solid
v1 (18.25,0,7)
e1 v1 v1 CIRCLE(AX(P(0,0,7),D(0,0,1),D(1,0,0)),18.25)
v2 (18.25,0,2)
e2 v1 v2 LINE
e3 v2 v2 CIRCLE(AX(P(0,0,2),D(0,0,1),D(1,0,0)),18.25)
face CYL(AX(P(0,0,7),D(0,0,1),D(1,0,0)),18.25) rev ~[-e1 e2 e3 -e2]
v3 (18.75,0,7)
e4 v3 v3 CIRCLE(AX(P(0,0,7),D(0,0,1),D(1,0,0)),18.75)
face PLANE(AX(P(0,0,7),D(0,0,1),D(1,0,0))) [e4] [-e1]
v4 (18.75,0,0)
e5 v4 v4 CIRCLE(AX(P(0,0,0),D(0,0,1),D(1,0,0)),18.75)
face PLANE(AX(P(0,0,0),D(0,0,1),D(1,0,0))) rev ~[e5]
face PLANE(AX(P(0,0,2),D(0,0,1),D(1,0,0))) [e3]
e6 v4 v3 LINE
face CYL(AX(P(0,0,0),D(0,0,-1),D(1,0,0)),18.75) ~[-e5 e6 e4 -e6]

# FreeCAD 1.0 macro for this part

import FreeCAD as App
import Part
import Sketcher

V = App.Vector
Q = App.Units.Quantity

doc = App.newDocument("Part")
body = doc.addObject("PartDesign::Body", "Body")

sketch1 = body.newObject("Sketcher::SketchObject", "Sketch")
sketch1.AttachmentSupport = (doc.getObject("XY_Plane"), [""])
sketch1.MapMode = "FlatFace"
sketch1.addGeometry(Part.Circle(V(0, 0, 0), V(0, 0, 1), 18.75), False)
sketch1.addConstraint(Sketcher.Constraint("Coincident", 0, 3, -1, 1))
sketch1.addConstraint(Sketcher.Constraint("Diameter", 0, Q("37.5 mm")))
pad1 = body.newObject("PartDesign::Pad", "Pad")
pad1.Profile = sketch1
pad1.Length = 7

sketch2 = body.newObject("Sketcher::SketchObject", "Sketch001")
sketch2.AttachmentSupport = (doc.getObject("XY_Plane"), [""])
sketch2.MapMode = "FlatFace"
sketch2.AttachmentOffset = App.Placement(V(0, 0, 7), App.Rotation())
sketch2.addGeometry(Part.Circle(V(0, 0, 0), V(0, 0, 1), 18.25), False)
sketch2.addConstraint(Sketcher.Constraint("Coincident", 0, 3, -1, 1))
sketch2.addConstraint(Sketcher.Constraint("Diameter", 0, Q("36.5 mm")))
pocket1 = body.newObject("PartDesign::Pocket", "Pocket")
pocket1.Profile = sketch2
pocket1.Length = 5

doc.recompute()
